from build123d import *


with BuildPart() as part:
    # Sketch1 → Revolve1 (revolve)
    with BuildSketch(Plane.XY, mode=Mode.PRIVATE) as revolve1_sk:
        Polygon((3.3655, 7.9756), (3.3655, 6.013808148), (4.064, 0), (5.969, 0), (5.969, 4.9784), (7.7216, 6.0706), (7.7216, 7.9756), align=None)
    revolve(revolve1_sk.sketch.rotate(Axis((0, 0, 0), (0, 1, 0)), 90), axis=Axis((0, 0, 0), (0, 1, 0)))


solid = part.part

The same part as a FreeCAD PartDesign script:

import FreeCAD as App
import Part
import Sketcher
Q = App.Units.Quantity

doc = App.newDocument("Part")
body = doc.addObject("PartDesign::Body", "Body")

# Sketch on XY plane
sketch1 = body.newObject("Sketcher::SketchObject", "Sketch")
sketch1.AttachmentSupport = (doc.getObject("XY_Plane"), [""])
sketch1.MapMode = "FlatFace"
sketch1.addGeometry(Part.LineSegment(App.Vector(3.3655, 7.9756, 0), App.Vector(3.3655, 6.013808, 0)), False)
sketch1.addGeometry(Part.LineSegment(App.Vector(3.3655, 6.013808, 0), App.Vector(4.064, 0, 0)), False)
sketch1.addGeometry(Part.LineSegment(App.Vector(4.064, 0, 0), App.Vector(5.969, 0, 0)), False)
sketch1.addGeometry(Part.LineSegment(App.Vector(5.969, 0, 0), App.Vector(5.969, 4.9784, 0)), False)
sketch1.addGeometry(Part.LineSegment(App.Vector(5.969, 4.9784, 0), App.Vector(7.7216, 6.0706, 0)), False)
sketch1.addGeometry(Part.LineSegment(App.Vector(7.7216, 6.0706, 0), App.Vector(7.7216, 7.9756, 0)), False)
sketch1.addGeometry(Part.LineSegment(App.Vector(7.7216, 7.9756, 0), App.Vector(3.3655, 7.9756, 0)), False)
sketch1.addConstraint(Sketcher.Constraint("Coincident", 0, 2, 1, 1))
sketch1.addConstraint(Sketcher.Constraint("Coincident", 1, 2, 2, 1))
sketch1.addConstraint(Sketcher.Constraint("Coincident", 2, 2, 3, 1))
sketch1.addConstraint(Sketcher.Constraint("Coincident", 3, 2, 4, 1))
sketch1.addConstraint(Sketcher.Constraint("Coincident", 4, 2, 5, 1))
sketch1.addConstraint(Sketcher.Constraint("Coincident", 5, 2, 6, 1))
sketch1.addConstraint(Sketcher.Constraint("Coincident", 6, 2, 0, 1))
sketch1.addConstraint(Sketcher.Constraint("Vertical", 0))
sketch1.addConstraint(Sketcher.Constraint("Horizontal", 2))
sketch1.addConstraint(Sketcher.Constraint("Vertical", 3))
sketch1.addConstraint(Sketcher.Constraint("Vertical", 5))
sketch1.addConstraint(Sketcher.Constraint("Horizontal", 6))
sketch1.addConstraint(Sketcher.Constraint("PointOnObject", 1, 2, -1))
sketch1.addConstraint(Sketcher.Constraint("Equal", 2, 5))
sketch1.addConstraint(Sketcher.Constraint("DistanceX", 2, 1, 2, 2, Q("0.075 in")))
sketch1.addConstraint(Sketcher.Constraint("DistanceY", 3, 1, 3, 2, Q("0.196 in")))
sketch1.addConstraint(Sketcher.Constraint("DistanceX", -1, 1, 1, 2, Q("0.16 in")))
sketch1.addConstraint(Sketcher.Constraint("DistanceX", 6, 2, 6, 1, Q("0.1715 in")))
sketch1.addConstraint(Sketcher.Constraint("DistanceX", -1, 1, 4, 2, Q("0.304 in")))
sketch1.addConstraint(Sketcher.Constraint("DistanceY", -1, 1, 4, 2, Q("0.239 in")))
sketch1.addConstraint(Sketcher.Constraint("DistanceY", 0, 2, 0, 1, Q("1.961792 mm")))
revolution = body.newObject("PartDesign::Revolution", "Revolution")
revolution.Profile = sketch1
revolution.ReferenceAxis = (sketch1, ["V_Axis"])
revolution.Angle = 360

doc.recompute()
